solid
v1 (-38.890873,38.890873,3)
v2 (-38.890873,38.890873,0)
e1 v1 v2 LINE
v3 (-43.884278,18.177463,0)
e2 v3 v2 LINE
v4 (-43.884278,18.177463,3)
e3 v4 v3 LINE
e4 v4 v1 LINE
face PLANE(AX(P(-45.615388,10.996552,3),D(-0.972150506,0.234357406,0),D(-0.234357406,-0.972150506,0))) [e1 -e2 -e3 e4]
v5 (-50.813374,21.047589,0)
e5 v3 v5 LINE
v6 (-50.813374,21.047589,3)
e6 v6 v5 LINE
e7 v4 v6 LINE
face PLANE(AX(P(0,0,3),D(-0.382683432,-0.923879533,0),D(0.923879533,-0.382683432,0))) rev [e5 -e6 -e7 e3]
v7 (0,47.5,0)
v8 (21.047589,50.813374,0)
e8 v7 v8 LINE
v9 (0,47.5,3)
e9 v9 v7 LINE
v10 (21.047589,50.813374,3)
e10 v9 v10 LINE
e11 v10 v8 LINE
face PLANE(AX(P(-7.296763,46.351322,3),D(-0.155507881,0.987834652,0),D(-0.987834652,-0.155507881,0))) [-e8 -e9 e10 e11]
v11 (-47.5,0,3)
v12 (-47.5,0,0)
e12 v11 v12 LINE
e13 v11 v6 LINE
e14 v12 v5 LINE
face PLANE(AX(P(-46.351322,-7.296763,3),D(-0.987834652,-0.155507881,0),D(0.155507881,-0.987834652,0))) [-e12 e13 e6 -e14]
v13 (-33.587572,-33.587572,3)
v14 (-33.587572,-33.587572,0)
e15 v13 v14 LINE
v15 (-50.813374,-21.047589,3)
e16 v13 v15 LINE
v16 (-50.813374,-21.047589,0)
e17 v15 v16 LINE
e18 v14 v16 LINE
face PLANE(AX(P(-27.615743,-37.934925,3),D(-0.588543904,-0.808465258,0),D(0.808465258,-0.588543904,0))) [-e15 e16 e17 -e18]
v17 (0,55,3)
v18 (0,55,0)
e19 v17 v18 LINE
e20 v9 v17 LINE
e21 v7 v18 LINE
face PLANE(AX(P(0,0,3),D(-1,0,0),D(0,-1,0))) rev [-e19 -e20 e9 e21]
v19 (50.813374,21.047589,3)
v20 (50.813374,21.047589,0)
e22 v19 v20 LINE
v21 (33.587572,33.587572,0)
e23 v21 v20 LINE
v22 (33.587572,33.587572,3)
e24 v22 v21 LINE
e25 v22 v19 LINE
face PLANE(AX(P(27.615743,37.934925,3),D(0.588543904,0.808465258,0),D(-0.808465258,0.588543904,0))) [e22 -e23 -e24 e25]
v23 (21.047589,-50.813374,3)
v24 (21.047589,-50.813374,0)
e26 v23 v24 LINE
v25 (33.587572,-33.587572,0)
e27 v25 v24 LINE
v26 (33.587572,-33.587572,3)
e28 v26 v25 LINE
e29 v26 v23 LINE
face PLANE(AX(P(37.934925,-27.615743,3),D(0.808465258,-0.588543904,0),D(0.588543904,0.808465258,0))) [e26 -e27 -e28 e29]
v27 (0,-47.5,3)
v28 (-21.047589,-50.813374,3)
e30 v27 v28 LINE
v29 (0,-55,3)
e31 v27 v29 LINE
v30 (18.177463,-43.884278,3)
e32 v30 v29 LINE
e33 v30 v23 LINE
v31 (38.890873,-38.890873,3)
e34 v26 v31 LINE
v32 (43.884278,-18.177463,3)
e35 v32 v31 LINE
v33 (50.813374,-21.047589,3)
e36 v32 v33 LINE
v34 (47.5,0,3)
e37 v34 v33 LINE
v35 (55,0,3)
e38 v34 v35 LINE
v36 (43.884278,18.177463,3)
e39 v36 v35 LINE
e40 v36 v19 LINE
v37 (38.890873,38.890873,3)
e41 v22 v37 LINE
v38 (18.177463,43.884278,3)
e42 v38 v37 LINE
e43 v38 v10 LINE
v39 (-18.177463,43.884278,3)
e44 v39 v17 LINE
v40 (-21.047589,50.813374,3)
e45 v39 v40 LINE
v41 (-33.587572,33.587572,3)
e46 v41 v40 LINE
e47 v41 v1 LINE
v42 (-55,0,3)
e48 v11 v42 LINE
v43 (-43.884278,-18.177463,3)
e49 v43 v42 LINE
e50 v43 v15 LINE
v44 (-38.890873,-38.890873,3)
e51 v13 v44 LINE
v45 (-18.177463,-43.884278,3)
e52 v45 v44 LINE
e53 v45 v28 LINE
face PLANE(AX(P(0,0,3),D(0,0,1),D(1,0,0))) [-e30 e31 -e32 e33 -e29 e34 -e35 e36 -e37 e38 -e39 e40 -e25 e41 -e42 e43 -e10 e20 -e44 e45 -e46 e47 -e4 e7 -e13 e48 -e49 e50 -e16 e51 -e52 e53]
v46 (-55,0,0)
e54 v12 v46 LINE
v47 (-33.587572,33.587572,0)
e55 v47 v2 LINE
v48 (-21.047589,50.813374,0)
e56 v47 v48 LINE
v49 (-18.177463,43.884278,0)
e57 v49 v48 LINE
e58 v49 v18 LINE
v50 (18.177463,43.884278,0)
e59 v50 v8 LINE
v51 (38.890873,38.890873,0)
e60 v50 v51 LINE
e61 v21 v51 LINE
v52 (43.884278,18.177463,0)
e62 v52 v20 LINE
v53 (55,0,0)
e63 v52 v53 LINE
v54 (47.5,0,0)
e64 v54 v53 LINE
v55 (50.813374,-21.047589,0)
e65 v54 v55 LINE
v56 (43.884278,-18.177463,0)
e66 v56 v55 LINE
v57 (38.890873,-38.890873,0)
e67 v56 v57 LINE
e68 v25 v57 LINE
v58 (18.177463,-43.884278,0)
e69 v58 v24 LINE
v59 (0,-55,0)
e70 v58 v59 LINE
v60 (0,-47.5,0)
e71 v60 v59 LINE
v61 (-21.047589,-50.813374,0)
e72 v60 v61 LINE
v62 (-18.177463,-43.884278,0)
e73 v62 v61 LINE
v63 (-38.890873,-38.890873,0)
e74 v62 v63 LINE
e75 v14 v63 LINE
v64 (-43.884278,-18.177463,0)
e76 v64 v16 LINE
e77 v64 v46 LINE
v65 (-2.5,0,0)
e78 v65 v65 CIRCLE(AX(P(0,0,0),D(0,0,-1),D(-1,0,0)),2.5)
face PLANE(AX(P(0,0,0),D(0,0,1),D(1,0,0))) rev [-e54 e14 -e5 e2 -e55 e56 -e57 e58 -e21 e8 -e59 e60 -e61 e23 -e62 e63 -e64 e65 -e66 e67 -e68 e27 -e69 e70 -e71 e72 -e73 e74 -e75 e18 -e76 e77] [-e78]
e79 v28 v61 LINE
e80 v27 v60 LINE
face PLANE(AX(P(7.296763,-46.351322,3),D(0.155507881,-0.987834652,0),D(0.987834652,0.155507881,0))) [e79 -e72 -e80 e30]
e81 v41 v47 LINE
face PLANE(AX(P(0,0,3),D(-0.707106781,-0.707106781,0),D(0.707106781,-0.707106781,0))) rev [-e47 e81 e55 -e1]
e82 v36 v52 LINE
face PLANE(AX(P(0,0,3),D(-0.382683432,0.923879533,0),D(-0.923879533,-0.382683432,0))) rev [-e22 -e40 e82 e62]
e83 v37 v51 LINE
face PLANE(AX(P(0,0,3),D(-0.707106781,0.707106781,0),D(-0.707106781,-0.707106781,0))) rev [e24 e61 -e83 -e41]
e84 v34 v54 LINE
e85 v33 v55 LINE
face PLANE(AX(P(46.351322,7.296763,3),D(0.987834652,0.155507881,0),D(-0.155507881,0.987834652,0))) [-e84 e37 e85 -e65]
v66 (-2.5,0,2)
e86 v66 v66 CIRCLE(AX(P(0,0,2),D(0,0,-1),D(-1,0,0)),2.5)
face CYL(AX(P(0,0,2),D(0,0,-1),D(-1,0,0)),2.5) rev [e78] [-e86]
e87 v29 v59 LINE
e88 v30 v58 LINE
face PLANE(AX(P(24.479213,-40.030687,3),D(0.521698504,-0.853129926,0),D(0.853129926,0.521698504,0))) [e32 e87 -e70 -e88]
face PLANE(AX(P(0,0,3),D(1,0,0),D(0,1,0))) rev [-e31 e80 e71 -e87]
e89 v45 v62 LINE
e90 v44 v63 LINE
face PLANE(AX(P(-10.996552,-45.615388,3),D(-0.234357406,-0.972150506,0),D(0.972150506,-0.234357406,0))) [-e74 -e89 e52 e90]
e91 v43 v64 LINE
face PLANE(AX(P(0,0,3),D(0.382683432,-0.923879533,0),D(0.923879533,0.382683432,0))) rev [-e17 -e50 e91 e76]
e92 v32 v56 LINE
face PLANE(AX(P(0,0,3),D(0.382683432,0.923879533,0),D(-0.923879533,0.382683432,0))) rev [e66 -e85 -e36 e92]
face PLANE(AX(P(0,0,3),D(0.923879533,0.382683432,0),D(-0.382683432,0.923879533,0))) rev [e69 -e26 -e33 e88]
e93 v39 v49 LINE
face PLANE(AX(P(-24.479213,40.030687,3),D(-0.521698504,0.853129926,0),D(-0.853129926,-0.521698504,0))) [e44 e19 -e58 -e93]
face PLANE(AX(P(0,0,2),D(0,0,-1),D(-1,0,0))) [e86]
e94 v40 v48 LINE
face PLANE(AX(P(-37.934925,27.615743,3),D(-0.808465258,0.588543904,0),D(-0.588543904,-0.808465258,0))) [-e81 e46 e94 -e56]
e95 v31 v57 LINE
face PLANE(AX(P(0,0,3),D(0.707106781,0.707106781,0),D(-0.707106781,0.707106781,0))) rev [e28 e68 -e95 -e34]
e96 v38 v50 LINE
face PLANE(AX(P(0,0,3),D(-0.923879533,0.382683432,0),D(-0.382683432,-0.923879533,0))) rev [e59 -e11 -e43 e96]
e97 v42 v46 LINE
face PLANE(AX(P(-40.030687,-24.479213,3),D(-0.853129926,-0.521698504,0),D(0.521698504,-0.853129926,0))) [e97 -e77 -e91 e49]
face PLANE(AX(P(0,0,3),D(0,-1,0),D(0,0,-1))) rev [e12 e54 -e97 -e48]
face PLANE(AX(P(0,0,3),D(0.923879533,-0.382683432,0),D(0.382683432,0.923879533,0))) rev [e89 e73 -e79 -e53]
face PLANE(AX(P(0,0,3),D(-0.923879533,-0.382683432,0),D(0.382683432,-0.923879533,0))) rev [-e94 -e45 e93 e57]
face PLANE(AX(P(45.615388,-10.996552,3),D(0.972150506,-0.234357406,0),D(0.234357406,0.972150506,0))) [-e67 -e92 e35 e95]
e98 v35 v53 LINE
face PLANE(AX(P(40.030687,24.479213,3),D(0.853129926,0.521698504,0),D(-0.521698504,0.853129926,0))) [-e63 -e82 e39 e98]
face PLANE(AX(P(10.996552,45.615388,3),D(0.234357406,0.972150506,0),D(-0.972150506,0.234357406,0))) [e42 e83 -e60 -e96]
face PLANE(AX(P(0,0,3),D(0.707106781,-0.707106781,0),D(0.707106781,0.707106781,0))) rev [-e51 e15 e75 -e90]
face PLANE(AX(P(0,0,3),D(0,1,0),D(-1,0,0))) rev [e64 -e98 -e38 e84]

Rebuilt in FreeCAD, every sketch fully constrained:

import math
import FreeCAD as App
import Part
import Sketcher
from FreeCAD import Vector
Q = App.Units.Quantity

doc = App.newDocument("Part")
params = doc.addObject("Spreadsheet::Sheet", "Params")
for row, (alias, value) in enumerate([
    ("sketch1_diameter", "110 mm"),
    ("pad1_length", "3 mm"),
    ("sketch2_radius", "55 mm"),
    ("sketch2_width", "7.5 mm"),
    ("pocket1_length", "3 mm"),
    ("sketch3_diameter", "5 mm"),
    ("pocket2_length", "2 mm"),
], start=1):
    params.set(f"A{row}", alias)
    params.set(f"B{row}", "=" + value)
    params.setAlias(f"B{row}", alias)

body = doc.addObject("PartDesign::Body", "Body")

# Sketch on XY plane
sketch1 = body.newObject("Sketcher::SketchObject", "Sketch")
sketch1.AttachmentSupport = (doc.getObject("XY_Plane"), [""])
sketch1.MapMode = "FlatFace"
sketch1.addGeometry(Part.Circle(Vector(0, 0, 0), Vector(0, 0, 1), 55), False)
sketch1.addConstraint([
    Sketcher.Constraint("Coincident", 0, 3, -1, 1),
    Sketcher.Constraint("Diameter", 0, Q("110 mm")),
])
sketch1.setExpression("Constraints[1]", "Params.sketch1_diameter")
pad1 = body.newObject("PartDesign::Pad", "Pad")
pad1.Profile = sketch1
pad1.setExpression("Length", "Params.pad1_length")

# Sketch on XY plane
sketch2 = body.newObject("Sketcher::SketchObject", "Sketch001")
sketch2.AttachmentSupport = (doc.getObject("XY_Plane"), [""])
sketch2.MapMode = "FlatFace"
sketch2.addGeometry([
    Part.LineSegment(Vector(-44, 18, 0), Vector(-51, 21, 0)),  # 0
    Part.ArcOfCircle(Part.Circle(Vector(0, 0, 0), Vector(0, 0, 1), 55), math.radians(135), math.radians(158)),  # 1
    Part.LineSegment(Vector(-39, 39, 0), Vector(-44, 18, 0)),  # 2
    Part.LineSegment(Vector(-34, 34, 0), Vector(-39, 39, 0)),  # 3
    Part.ArcOfCircle(Part.Circle(Vector(0, 0, 0), Vector(0, 0, 1), 55), math.radians(112), math.radians(135)),  # 4
    Part.LineSegment(Vector(-21, 51, 0), Vector(-34, 34, 0)),  # 5
    Part.LineSegment(Vector(-18, 44, 0), Vector(-21, 51, 0)),  # 6
    Part.ArcOfCircle(Part.Circle(Vector(0, 0, 0), Vector(0, 0, 1), 55), math.radians(90), math.radians(112)),  # 7
    Part.LineSegment(Vector(0, 55, 0), Vector(-18, 44, 0)),  # 8
    Part.LineSegment(Vector(0, 48, 0), Vector(0, 55, 0)),  # 9
    Part.ArcOfCircle(Part.Circle(Vector(0, 0, 0), Vector(0, 0, 1), 55), math.radians(68), math.radians(90)),  # 10
    Part.LineSegment(Vector(21, 51, 0), Vector(0, 48, 0)),  # 11
    Part.LineSegment(Vector(18, 44, 0), Vector(21, 51, 0)),  # 12
    Part.ArcOfCircle(Part.Circle(Vector(0, 0, 0), Vector(0, 0, 1), 55), math.radians(45), math.radians(68)),  # 13
    Part.LineSegment(Vector(39, 39, 0), Vector(18, 44, 0)),  # 14
    Part.LineSegment(Vector(34, 34, 0), Vector(39, 39, 0)),  # 15
    Part.ArcOfCircle(Part.Circle(Vector(0, 0, 0), Vector(0, 0, 1), 55), math.radians(22), math.radians(45)),  # 16
    Part.LineSegment(Vector(51, 21, 0), Vector(34, 34, 0)),  # 17
    Part.LineSegment(Vector(44, 18, 0), Vector(51, 21, 0)),  # 18
    Part.ArcOfCircle(Part.Circle(Vector(0, 0, 0), Vector(0, 0, 1), 55), math.radians(0), math.radians(22)),  # 19
    Part.LineSegment(Vector(55, 0, 0), Vector(44, 18, 0)),  # 20
    Part.ArcOfCircle(Part.Circle(Vector(0, 0, 0), Vector(0, 0, 1), 55), math.radians(-22), math.radians(0)),  # 21
    Part.LineSegment(Vector(51, -21, 0), Vector(48, 0, 0)),  # 22
    Part.LineSegment(Vector(48, 0, 0), Vector(55, 0, 0)),  # 23
    Part.ArcOfCircle(Part.Circle(Vector(0, 0, 0), Vector(0, 0, 1), 55), math.radians(-45), math.radians(-22)),  # 24
    Part.LineSegment(Vector(39, -39, 0), Vector(44, -18, 0)),  # 25
    Part.LineSegment(Vector(44, -18, 0), Vector(51, -21, 0)),  # 26
    Part.ArcOfCircle(Part.Circle(Vector(0, 0, 0), Vector(0, 0, 1), 55), math.radians(-68), math.radians(-45)),  # 27
    Part.LineSegment(Vector(21, -51, 0), Vector(34, -34, 0)),  # 28
    Part.LineSegment(Vector(34, -34, 0), Vector(39, -39, 0)),  # 29
    Part.ArcOfCircle(Part.Circle(Vector(0, 0, 0), Vector(0, 0, 1), 55), math.radians(-90), math.radians(-68)),  # 30
    Part.LineSegment(Vector(0, -55, 0), Vector(18, -44, 0)),  # 31
    Part.LineSegment(Vector(18, -44, 0), Vector(21, -51, 0)),  # 32
    Part.ArcOfCircle(Part.Circle(Vector(0, 0, 0), Vector(0, 0, 1), 55), math.radians(-112), math.radians(-90)),  # 33
    Part.LineSegment(Vector(-21, -51, 0), Vector(0, -48, 0)),  # 34
    Part.LineSegment(Vector(0, -48, 0), Vector(0, -55, 0)),  # 35
    Part.ArcOfCircle(Part.Circle(Vector(0, 0, 0), Vector(0, 0, 1), 55), math.radians(-135), math.radians(-112)),  # 36
    Part.LineSegment(Vector(-39, -39, 0), Vector(-18, -44, 0)),  # 37
    Part.LineSegment(Vector(-18, -44, 0), Vector(-21, -51, 0)),  # 38
    Part.ArcOfCircle(Part.Circle(Vector(0, 0, 0), Vector(0, 0, 1), 55), math.radians(-158), math.radians(-135)),  # 39
    Part.LineSegment(Vector(-51, -21, 0), Vector(-34, -34, 0)),  # 40
    Part.LineSegment(Vector(-34, -34, 0), Vector(-39, -39, 0)),  # 41
    Part.ArcOfCircle(Part.Circle(Vector(0, 0, 0), Vector(0, 0, 1), 55), math.radians(-180), math.radians(-158)),  # 42
    Part.LineSegment(Vector(-55, 0, 0), Vector(-44, -18, 0)),  # 43
    Part.LineSegment(Vector(-44, -18, 0), Vector(-51, -21, 0)),  # 44
    Part.LineSegment(Vector(-51, 21, 0), Vector(-48, 0, 0)),  # 45
    Part.LineSegment(Vector(-48, 0, 0), Vector(-55, 0, 0)),  # 46
    Part.ArcOfCircle(Part.Circle(Vector(0, 0, 0), Vector(0, 0, 1), 55), math.radians(158), math.radians(180)),  # 47
], False)
sketch2.addConstraint([
    Sketcher.Constraint("Coincident", 0, 2, 1, 2),
    Sketcher.Constraint("Coincident", 1, 1, 2, 1),
    Sketcher.Constraint("Coincident", 2, 2, 0, 1),
    Sketcher.Constraint("Coincident", 3, 2, 4, 2),
    Sketcher.Constraint("Coincident", 4, 1, 5, 1),
    Sketcher.Constraint("Coincident", 5, 2, 3, 1),
    Sketcher.Constraint("Coincident", 6, 2, 7, 2),
    Sketcher.Constraint("Coincident", 7, 1, 8, 1),
    Sketcher.Constraint("Coincident", 8, 2, 6, 1),
    Sketcher.Constraint("Coincident", 9, 2, 10, 2),
    Sketcher.Constraint("Coincident", 10, 1, 11, 1),
    Sketcher.Constraint("Coincident", 11, 2, 9, 1),
    Sketcher.Constraint("Coincident", 12, 2, 13, 2),
    Sketcher.Constraint("Coincident", 13, 1, 14, 1),
    Sketcher.Constraint("Coincident", 14, 2, 12, 1),
    Sketcher.Constraint("Coincident", 15, 2, 16, 2),
    Sketcher.Constraint("Coincident", 16, 1, 17, 1),
    Sketcher.Constraint("Coincident", 17, 2, 15, 1),
    Sketcher.Constraint("Coincident", 18, 2, 19, 2),
    Sketcher.Constraint("Coincident", 19, 1, 20, 1),
    Sketcher.Constraint("Coincident", 20, 2, 18, 1),
    Sketcher.Constraint("Coincident", 21, 1, 22, 1),
    Sketcher.Constraint("Coincident", 22, 2, 23, 1),
    Sketcher.Constraint("Coincident", 23, 2, 21, 2),
    Sketcher.Constraint("Coincident", 24, 1, 25, 1),
    Sketcher.Constraint("Coincident", 25, 2, 26, 1),
    Sketcher.Constraint("Coincident", 26, 2, 24, 2),
    Sketcher.Constraint("Coincident", 27, 1, 28, 1),
    Sketcher.Constraint("Coincident", 28, 2, 29, 1),
    Sketcher.Constraint("Coincident", 29, 2, 27, 2),
    Sketcher.Constraint("Coincident", 30, 1, 31, 1),
    Sketcher.Constraint("Coincident", 31, 2, 32, 1),
    Sketcher.Constraint("Coincident", 32, 2, 30, 2),
    Sketcher.Constraint("Coincident", 33, 1, 34, 1),
    Sketcher.Constraint("Coincident", 34, 2, 35, 1),
    Sketcher.Constraint("Coincident", 35, 2, 33, 2),
    Sketcher.Constraint("Coincident", 36, 1, 37, 1),
    Sketcher.Constraint("Coincident", 37, 2, 38, 1),
    Sketcher.Constraint("Coincident", 38, 2, 36, 2),
    Sketcher.Constraint("Coincident", 39, 1, 40, 1),
    Sketcher.Constraint("Coincident", 40, 2, 41, 1),
    Sketcher.Constraint("Coincident", 41, 2, 39, 2),
    Sketcher.Constraint("Coincident", 42, 1, 43, 1),
    Sketcher.Constraint("Coincident", 43, 2, 44, 1),
    Sketcher.Constraint("Coincident", 44, 2, 42, 2),
    Sketcher.Constraint("Coincident", 45, 2, 46, 1),
    Sketcher.Constraint("Coincident", 46, 2, 47, 2),
    Sketcher.Constraint("Coincident", 47, 1, 45, 1),
    Sketcher.Constraint("Vertical", 9),
    Sketcher.Constraint("Horizontal", 23),
    Sketcher.Constraint("Vertical", 35),
    Sketcher.Constraint("Horizontal", 46),
    Sketcher.Constraint("Coincident", 1, 3, -1, 1),
    Sketcher.Constraint("Coincident", 4, 3, -1, 1),
    Sketcher.Constraint("Coincident", 7, 3, -1, 1),
    Sketcher.Constraint("Coincident", 10, 3, -1, 1),
    Sketcher.Constraint("Coincident", 13, 3, -1, 1),
    Sketcher.Constraint("Coincident", 16, 3, -1, 1),
    Sketcher.Constraint("Coincident", 19, 3, -1, 1),
    Sketcher.Constraint("Coincident", 21, 3, -1, 1),
    Sketcher.Constraint("Coincident", 24, 3, -1, 1),
    Sketcher.Constraint("Coincident", 27, 3, -1, 1),
    Sketcher.Constraint("Coincident", 30, 3, -1, 1),
    Sketcher.Constraint("Coincident", 33, 3, -1, 1),
    Sketcher.Constraint("Coincident", 36, 3, -1, 1),
    Sketcher.Constraint("Coincident", 39, 3, -1, 1),
    Sketcher.Constraint("Coincident", 42, 3, -1, 1),
    Sketcher.Constraint("Coincident", 47, 3, -1, 1),
    Sketcher.Constraint("Coincident", 3, 2, 1, 1),
    Sketcher.Constraint("Coincident", 6, 2, 4, 1),
    Sketcher.Constraint("Coincident", 9, 2, 7, 1),
    Sketcher.Constraint("Coincident", 12, 2, 10, 1),
    Sketcher.Constraint("Coincident", 15, 2, 13, 1),
    Sketcher.Constraint("Coincident", 18, 2, 16, 1),
    Sketcher.Constraint("Coincident", 23, 2, 19, 1),
    Sketcher.Constraint("Coincident", 26, 2, 21, 1),
    Sketcher.Constraint("Coincident", 29, 2, 24, 1),
    Sketcher.Constraint("Coincident", 32, 2, 27, 1),
    Sketcher.Constraint("Coincident", 35, 2, 30, 1),
    Sketcher.Constraint("Coincident", 38, 2, 33, 1),
    Sketcher.Constraint("Coincident", 41, 2, 36, 1),
    Sketcher.Constraint("Coincident", 44, 2, 39, 1),
    Sketcher.Constraint("Coincident", 46, 2, 42, 1),
    Sketcher.Constraint("Symmetric", 2, 2, 25, 2, -1, 1),
    Sketcher.Constraint("Symmetric", 5, 2, 28, 2, -1, 1),
    Sketcher.Constraint("Symmetric", 8, 2, 31, 2, -1, 1),
    Sketcher.Constraint("Symmetric", 11, 2, 34, 2, -1, 1),
    Sketcher.Constraint("Symmetric", 14, 2, 37, 2, -1, 1),
    Sketcher.Constraint("Symmetric", 17, 2, 40, 2, -1, 1),
    Sketcher.Constraint("Symmetric", 20, 2, 43, 2, -1, 1),
    Sketcher.Constraint("Symmetric", 22, 2, 45, 2, -1, 1),
    Sketcher.Constraint("Symmetric", 8, 2, 14, 2, -2),
    Sketcher.Constraint("Symmetric", 5, 2, 17, 2, -2),
    Sketcher.Constraint("Symmetric", 2, 2, 20, 2, -2),
    Sketcher.Constraint("PointOnObject", 7, 1, -2),
    Sketcher.Constraint("PointOnObject", 19, 1, -1),
    Sketcher.Constraint("Perpendicular", 0, 12),
    Sketcher.Constraint("Perpendicular", 2, 14),
    Sketcher.Constraint("Perpendicular", 3, 15),
    Sketcher.Constraint("Perpendicular", 5, 17),
    Sketcher.Constraint("Perpendicular", 6, 18),
    Sketcher.Constraint("Perpendicular", 8, 20),
    Sketcher.Constraint("Perpendicular", 11, 22),
    Sketcher.Constraint("Perpendicular", 14, 25),
    Sketcher.Constraint("Perpendicular", 12, 26),
    Sketcher.Constraint("Perpendicular", 17, 28),
    Sketcher.Constraint("Perpendicular", 22, 34),
    Sketcher.Constraint("Perpendicular", 25, 37),
    Sketcher.Constraint("Perpendicular", 28, 40),
    Sketcher.Constraint("Perpendicular", 34, 45),
    Sketcher.Constraint("Horizontal", 6, 2, 10, 1),
    Sketcher.Constraint("Horizontal", 3, 2, 13, 1),
    Sketcher.Constraint("Equal", 0, 3),
    Sketcher.Constraint("Equal", 2, 5),
    Sketcher.Constraint("Equal", 5, 8),
    Sketcher.Constraint("Equal", 8, 11),
    Sketcher.Constraint("Radius", 1, Q("55 mm")),
    Sketcher.Constraint("DistanceX", 23, 1, 23, 2, Q("7.5 mm")),
])
sketch2.setExpression("Constraints[116]", "Params.sketch2_radius")
sketch2.setExpression("Constraints[117]", "Params.sketch2_width")
pocket1 = body.newObject("PartDesign::Pocket", "Pocket")
pocket1.Profile = sketch2
pocket1.setExpression("Length", "Params.pocket1_length")
pocket1.Reversed = True

# Sketch on XY plane
sketch3 = body.newObject("Sketcher::SketchObject", "Sketch002")
sketch3.AttachmentSupport = (doc.getObject("XY_Plane"), [""])
sketch3.MapMode = "FlatFace"
sketch3.addGeometry(Part.Circle(Vector(0, 0, 0), Vector(0, 0, 1), 2.5), False)
sketch3.addConstraint([
    Sketcher.Constraint("Coincident", 0, 3, -1, 1),
    Sketcher.Constraint("Diameter", 0, Q("5 mm")),
])
sketch3.setExpression("Constraints[1]", "Params.sketch3_diameter")
pocket2 = body.newObject("PartDesign::Pocket", "Pocket001")
pocket2.Profile = sketch3
pocket2.setExpression("Length", "Params.pocket2_length")
pocket2.Reversed = True

doc.recompute()
